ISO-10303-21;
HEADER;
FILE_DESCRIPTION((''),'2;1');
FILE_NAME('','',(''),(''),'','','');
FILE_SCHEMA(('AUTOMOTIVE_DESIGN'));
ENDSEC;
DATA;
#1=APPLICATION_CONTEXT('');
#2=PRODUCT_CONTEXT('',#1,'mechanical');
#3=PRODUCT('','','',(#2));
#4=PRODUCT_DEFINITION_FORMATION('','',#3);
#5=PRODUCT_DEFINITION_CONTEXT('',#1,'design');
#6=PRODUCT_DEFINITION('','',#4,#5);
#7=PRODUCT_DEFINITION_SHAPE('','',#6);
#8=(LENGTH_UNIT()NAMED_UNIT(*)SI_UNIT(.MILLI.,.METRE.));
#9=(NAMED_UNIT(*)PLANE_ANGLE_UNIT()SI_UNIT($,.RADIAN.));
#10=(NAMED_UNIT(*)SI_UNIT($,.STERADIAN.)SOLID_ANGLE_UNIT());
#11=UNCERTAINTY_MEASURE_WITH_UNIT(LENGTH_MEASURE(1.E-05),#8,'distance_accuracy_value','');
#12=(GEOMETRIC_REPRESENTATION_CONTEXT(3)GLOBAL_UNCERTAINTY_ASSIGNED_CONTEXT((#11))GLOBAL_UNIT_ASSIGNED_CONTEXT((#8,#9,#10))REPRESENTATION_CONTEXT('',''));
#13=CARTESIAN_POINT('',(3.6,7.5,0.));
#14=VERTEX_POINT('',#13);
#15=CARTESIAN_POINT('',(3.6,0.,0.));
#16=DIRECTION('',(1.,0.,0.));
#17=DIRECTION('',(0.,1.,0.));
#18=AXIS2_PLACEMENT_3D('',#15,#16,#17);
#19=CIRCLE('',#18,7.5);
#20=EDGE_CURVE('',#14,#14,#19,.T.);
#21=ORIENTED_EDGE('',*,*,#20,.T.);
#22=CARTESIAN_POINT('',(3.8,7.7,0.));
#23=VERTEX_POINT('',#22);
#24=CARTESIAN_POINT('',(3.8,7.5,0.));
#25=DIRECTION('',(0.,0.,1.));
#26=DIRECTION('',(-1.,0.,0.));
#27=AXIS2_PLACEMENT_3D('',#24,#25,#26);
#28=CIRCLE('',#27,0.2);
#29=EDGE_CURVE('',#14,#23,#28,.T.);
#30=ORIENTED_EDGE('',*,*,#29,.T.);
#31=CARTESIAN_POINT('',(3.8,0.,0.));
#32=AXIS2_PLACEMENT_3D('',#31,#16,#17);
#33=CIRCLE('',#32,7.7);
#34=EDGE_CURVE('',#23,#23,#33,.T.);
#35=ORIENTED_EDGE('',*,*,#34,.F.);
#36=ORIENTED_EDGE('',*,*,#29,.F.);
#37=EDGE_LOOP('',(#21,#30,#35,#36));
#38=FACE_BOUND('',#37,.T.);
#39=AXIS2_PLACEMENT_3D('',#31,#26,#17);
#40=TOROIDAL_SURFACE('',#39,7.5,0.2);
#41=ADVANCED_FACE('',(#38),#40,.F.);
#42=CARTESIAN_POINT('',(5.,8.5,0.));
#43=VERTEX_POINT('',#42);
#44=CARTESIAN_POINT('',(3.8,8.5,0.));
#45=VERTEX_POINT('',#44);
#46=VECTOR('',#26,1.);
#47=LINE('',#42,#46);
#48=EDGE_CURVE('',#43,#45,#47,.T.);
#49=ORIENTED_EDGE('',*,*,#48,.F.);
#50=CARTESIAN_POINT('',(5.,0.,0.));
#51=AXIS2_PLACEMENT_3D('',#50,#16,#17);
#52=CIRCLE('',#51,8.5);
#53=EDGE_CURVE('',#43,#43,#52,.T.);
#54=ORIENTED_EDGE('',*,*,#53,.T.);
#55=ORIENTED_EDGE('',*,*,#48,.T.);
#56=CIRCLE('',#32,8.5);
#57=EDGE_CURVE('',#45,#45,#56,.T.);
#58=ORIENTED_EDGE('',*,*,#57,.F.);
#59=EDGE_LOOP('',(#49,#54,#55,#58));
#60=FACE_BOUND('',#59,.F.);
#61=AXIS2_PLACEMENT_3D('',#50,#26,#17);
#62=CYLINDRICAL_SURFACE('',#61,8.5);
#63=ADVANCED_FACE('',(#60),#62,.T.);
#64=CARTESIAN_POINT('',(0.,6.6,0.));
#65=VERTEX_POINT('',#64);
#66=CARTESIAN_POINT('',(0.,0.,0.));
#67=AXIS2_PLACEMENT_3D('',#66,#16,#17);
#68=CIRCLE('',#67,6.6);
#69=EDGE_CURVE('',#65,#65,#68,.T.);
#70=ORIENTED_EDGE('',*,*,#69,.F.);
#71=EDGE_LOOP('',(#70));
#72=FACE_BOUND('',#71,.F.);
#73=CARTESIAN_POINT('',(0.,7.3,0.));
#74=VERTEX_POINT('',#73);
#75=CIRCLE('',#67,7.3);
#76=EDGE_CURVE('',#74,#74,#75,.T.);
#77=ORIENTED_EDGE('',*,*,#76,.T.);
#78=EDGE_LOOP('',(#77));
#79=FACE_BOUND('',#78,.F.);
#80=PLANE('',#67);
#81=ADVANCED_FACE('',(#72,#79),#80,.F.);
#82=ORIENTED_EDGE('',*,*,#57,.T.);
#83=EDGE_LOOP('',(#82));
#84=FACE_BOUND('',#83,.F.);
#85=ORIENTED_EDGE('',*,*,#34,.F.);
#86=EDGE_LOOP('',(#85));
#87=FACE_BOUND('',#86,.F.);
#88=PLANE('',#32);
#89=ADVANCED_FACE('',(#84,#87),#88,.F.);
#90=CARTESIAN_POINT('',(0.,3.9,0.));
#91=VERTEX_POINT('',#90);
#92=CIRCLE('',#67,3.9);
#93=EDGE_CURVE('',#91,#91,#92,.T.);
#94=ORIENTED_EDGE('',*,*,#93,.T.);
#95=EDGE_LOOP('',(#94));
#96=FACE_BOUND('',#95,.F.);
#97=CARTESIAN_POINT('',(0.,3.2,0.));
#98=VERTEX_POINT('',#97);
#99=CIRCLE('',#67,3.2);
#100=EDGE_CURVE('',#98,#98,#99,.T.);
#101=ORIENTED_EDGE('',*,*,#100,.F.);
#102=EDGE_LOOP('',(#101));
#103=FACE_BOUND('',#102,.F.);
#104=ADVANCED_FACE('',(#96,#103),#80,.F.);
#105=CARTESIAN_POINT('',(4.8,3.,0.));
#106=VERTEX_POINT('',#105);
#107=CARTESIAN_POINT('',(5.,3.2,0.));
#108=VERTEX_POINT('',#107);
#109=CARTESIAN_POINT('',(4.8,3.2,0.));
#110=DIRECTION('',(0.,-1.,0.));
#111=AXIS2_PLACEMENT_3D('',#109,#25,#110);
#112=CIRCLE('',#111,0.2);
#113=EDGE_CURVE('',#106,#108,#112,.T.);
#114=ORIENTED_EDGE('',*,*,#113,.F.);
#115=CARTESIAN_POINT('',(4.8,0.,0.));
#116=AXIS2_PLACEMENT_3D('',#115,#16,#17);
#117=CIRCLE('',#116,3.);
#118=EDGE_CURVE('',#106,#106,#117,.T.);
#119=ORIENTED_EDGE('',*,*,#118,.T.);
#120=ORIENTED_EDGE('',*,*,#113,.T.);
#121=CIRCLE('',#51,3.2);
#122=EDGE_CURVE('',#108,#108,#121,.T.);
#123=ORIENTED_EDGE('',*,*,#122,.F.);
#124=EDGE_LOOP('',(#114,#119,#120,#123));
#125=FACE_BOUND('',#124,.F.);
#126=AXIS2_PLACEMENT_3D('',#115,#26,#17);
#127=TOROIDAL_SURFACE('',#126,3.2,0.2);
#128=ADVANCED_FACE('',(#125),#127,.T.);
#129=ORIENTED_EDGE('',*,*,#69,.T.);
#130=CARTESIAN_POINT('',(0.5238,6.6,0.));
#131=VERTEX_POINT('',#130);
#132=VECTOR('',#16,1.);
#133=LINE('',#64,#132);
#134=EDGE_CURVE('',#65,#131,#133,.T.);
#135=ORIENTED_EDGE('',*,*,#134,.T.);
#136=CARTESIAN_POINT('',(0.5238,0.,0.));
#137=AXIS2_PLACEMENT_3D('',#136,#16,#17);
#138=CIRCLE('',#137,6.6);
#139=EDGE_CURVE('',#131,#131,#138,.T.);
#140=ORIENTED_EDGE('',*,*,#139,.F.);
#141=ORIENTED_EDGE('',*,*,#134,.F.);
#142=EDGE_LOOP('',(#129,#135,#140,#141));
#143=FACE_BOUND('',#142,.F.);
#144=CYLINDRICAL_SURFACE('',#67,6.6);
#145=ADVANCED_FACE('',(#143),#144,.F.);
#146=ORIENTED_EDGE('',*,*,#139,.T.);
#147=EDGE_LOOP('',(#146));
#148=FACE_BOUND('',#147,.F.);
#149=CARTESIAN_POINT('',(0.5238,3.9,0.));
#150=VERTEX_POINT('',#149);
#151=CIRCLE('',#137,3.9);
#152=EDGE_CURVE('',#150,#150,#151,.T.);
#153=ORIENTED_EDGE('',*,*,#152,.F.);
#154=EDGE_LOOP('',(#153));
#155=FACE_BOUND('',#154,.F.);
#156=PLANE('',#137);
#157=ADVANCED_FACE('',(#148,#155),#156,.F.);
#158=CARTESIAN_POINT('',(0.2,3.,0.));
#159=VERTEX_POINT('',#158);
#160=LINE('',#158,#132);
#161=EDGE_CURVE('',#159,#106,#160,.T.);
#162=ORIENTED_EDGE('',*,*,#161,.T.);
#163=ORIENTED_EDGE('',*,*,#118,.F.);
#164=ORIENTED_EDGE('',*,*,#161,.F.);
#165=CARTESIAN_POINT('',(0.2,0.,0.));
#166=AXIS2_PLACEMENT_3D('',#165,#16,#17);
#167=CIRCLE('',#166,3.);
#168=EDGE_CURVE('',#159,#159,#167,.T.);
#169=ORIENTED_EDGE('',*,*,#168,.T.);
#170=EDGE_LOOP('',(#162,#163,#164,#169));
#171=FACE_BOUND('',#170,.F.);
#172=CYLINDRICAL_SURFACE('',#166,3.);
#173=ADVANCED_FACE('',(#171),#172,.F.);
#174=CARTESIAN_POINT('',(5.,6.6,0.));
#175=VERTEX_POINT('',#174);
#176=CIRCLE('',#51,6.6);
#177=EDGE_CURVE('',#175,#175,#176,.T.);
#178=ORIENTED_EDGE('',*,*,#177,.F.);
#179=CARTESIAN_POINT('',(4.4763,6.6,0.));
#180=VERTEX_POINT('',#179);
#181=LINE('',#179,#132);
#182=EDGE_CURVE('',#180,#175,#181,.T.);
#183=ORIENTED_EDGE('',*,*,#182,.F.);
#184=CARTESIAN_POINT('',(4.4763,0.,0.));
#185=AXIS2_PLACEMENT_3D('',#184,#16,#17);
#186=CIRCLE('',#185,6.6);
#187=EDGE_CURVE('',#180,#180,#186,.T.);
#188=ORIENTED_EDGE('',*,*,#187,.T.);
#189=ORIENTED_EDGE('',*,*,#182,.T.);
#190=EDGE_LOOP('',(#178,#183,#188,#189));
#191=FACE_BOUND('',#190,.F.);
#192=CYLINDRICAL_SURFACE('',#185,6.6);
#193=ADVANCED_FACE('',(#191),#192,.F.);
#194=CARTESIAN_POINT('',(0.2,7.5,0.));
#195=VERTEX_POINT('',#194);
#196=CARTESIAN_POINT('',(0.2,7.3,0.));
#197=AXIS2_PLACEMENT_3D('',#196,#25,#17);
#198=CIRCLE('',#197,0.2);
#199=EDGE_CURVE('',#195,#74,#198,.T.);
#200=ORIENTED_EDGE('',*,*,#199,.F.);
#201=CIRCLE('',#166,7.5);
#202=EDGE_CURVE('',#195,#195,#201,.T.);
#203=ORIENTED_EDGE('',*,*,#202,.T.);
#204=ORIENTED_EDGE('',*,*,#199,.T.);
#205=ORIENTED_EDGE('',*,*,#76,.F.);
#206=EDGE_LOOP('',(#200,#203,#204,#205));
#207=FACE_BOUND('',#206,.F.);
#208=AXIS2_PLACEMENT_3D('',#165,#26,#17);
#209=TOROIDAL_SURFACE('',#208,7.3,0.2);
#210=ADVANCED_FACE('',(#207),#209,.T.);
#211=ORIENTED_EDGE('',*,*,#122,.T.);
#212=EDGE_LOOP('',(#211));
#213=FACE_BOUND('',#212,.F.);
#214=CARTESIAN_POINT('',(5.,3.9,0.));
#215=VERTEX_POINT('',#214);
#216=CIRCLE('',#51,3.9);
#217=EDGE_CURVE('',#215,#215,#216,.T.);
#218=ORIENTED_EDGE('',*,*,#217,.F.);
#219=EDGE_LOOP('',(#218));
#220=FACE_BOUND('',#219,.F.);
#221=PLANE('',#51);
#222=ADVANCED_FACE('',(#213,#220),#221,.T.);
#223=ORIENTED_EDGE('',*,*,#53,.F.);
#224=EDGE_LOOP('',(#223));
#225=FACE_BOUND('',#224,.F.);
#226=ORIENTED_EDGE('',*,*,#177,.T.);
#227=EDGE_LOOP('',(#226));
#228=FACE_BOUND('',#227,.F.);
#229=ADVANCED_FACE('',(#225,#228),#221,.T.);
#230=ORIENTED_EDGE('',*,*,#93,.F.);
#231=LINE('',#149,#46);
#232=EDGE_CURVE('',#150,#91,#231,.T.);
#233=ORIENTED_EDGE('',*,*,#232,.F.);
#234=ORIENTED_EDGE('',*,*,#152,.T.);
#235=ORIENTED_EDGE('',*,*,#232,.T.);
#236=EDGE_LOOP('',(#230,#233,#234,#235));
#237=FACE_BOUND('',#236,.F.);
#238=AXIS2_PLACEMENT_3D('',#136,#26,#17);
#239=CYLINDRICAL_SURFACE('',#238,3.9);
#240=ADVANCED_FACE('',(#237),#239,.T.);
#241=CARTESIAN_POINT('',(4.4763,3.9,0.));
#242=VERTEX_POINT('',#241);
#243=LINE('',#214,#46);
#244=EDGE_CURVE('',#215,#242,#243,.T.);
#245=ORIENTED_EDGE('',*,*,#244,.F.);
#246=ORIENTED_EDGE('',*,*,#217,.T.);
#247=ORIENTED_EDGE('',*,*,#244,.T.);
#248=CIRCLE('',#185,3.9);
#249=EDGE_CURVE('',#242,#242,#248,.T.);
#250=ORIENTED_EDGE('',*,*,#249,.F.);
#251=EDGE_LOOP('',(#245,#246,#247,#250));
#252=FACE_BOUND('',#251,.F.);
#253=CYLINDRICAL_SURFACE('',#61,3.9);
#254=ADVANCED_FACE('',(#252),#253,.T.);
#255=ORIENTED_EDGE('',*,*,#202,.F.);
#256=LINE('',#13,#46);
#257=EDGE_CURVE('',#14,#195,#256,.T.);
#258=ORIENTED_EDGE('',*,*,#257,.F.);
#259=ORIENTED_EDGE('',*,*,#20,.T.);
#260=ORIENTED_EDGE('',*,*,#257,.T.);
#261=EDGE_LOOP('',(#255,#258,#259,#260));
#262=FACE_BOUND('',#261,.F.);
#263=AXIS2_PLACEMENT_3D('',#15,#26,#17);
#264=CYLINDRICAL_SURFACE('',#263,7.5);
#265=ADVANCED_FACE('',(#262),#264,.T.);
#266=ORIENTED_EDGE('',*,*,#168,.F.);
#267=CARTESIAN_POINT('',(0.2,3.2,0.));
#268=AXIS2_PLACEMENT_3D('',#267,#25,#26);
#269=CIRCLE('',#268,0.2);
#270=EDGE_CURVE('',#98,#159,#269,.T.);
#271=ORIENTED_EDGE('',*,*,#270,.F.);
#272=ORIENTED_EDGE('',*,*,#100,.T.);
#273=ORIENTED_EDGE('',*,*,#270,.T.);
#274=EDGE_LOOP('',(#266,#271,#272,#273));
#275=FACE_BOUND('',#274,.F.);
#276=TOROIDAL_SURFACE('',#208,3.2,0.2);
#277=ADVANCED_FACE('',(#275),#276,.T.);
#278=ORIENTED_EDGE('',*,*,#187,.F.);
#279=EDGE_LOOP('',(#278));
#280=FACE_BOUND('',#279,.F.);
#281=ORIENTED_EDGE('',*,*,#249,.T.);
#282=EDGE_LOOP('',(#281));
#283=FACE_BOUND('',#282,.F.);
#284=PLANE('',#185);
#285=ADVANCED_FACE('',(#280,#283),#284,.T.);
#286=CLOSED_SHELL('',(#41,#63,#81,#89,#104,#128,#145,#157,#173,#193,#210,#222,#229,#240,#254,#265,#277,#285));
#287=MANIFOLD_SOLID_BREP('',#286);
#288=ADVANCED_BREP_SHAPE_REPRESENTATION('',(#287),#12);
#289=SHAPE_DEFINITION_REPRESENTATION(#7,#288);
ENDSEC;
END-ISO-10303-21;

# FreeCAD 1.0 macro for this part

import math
import FreeCAD as App
import Part
import Sketcher
Q = App.Units.Quantity

doc = App.newDocument("Part")
body = doc.addObject("PartDesign::Body", "Body")

# Sketch on XY plane
sketch1 = body.newObject("Sketcher::SketchObject", "Sketch")
sketch1.AttachmentSupport = (doc.getObject("XY_Plane"), [""])
sketch1.MapMode = "FlatFace"
sketch1.addGeometry([
    Part.LineSegment(App.Vector(0, 3.9, 0), App.Vector(0, 3.2, 0)),  # 0
    Part.ArcOfCircle(Part.Circle(App.Vector(0.2, 3.2, 0), App.Vector(0, 0, 1), 0.2), math.radians(180), math.radians(270)),  # 1
    Part.LineSegment(App.Vector(0.2, 3, 0), App.Vector(4.8, 3, 0)),  # 2
    Part.ArcOfCircle(Part.Circle(App.Vector(4.8, 3.2, 0), App.Vector(0, 0, 1), 0.2), math.radians(-90), math.radians(0)),  # 3
    Part.LineSegment(App.Vector(5, 3.2, 0), App.Vector(5, 3.9, 0)),  # 4
    Part.LineSegment(App.Vector(5, 3.9, 0), App.Vector(4.48, 3.9, 0)),  # 5
    Part.LineSegment(App.Vector(4.48, 3.9, 0), App.Vector(4.48, 6.6, 0)),  # 6
    Part.LineSegment(App.Vector(4.48, 6.6, 0), App.Vector(5, 6.6, 0)),  # 7
    Part.LineSegment(App.Vector(5, 6.6, 0), App.Vector(5, 8.5, 0)),  # 8
    Part.LineSegment(App.Vector(5, 8.5, 0), App.Vector(3.8, 8.5, 0)),  # 9
    Part.LineSegment(App.Vector(3.8, 8.5, 0), App.Vector(3.8, 7.7, 0)),  # 10
    Part.ArcOfCircle(Part.Circle(App.Vector(3.8, 7.5, 0), App.Vector(0, 0, 1), 0.2), math.radians(180), math.radians(450)),  # 11
    Part.LineSegment(App.Vector(3.6, 7.5, 0), App.Vector(0.2, 7.5, 0)),  # 12
    Part.ArcOfCircle(Part.Circle(App.Vector(0.2, 7.3, 0), App.Vector(0, 0, 1), 0.2), math.radians(90), math.radians(180)),  # 13
    Part.LineSegment(App.Vector(0, 7.3, 0), App.Vector(0, 6.6, 0)),  # 14
    Part.LineSegment(App.Vector(0, 6.6, 0), App.Vector(0.52, 6.6, 0)),  # 15
    Part.LineSegment(App.Vector(0.52, 6.6, 0), App.Vector(0.52, 3.9, 0)),  # 16
    Part.LineSegment(App.Vector(0.52, 3.9, 0), App.Vector(0, 3.9, 0)),  # 17
], False)
sketch1.addConstraint([
    Sketcher.Constraint("Tangent", 0, 2, 1, 1),
    Sketcher.Constraint("Tangent", 1, 2, 2, 1),
    Sketcher.Constraint("Tangent", 2, 2, 3, 1),
    Sketcher.Constraint("Tangent", 3, 2, 4, 1),
    Sketcher.Constraint("Coincident", 4, 2, 5, 1),
    Sketcher.Constraint("Coincident", 5, 2, 6, 1),
    Sketcher.Constraint("Coincident", 6, 2, 7, 1),
    Sketcher.Constraint("Coincident", 7, 2, 8, 1),
    Sketcher.Constraint("Coincident", 8, 2, 9, 1),
    Sketcher.Constraint("Coincident", 9, 2, 10, 1),
    Sketcher.Constraint("Coincident", 10, 2, 11, 2),
    Sketcher.Constraint("Coincident", 11, 1, 12, 1),
    Sketcher.Constraint("Tangent", 12, 2, 13, 1),
    Sketcher.Constraint("Tangent", 13, 2, 14, 1),
    Sketcher.Constraint("Coincident", 14, 2, 15, 1),
    Sketcher.Constraint("Coincident", 15, 2, 16, 1),
    Sketcher.Constraint("Coincident", 16, 2, 17, 1),
    Sketcher.Constraint("Coincident", 17, 2, 0, 1),
    Sketcher.Constraint("Vertical", 0),
    Sketcher.Constraint("Horizontal", 2),
    Sketcher.Constraint("Vertical", 4),
    Sketcher.Constraint("Horizontal", 5),
    Sketcher.Constraint("Vertical", 6),
    Sketcher.Constraint("Horizontal", 7),
    Sketcher.Constraint("Vertical", 8),
    Sketcher.Constraint("Horizontal", 9),
    Sketcher.Constraint("Vertical", 10),
    Sketcher.Constraint("Horizontal", 12),
    Sketcher.Constraint("Vertical", 14),
    Sketcher.Constraint("Horizontal", 15),
    Sketcher.Constraint("Vertical", 16),
    Sketcher.Constraint("Horizontal", 17),
    Sketcher.Constraint("Equal", 1, 3),
    Sketcher.Constraint("Equal", 3, 11),
    Sketcher.Constraint("Equal", 11, 13),
    Sketcher.Constraint("PointOnObject", 0, 2, -2),
    Sketcher.Constraint("PointOnObject", 13, 2, -2),
    Sketcher.Constraint("Horizontal", 7, 2, 14, 2),
    Sketcher.Constraint("Horizontal", 5, 2, 16, 2),
    Sketcher.Constraint("Vertical", 4, 2, 7, 2),
    Sketcher.Constraint("Vertical", 11, 3, 9, 2),
    Sketcher.Constraint("Equal", 7, 15),
    Sketcher.Constraint("Equal", 4, 14),
    Sketcher.Constraint("Radius", 1, Q("0.2 mm")),
    Sketcher.Constraint("DistanceX", 2, 1, 2, 2, Q("4.6 mm")),
    Sketcher.Constraint("DistanceX", 9, 2, 9, 1, Q("1.2 mm")),
    Sketcher.Constraint("DistanceY", 0, 2, 0, 1, Q("0.7 mm")),
    Sketcher.Constraint("DistanceY", 6, 1, 6, 2, Q("2.7 mm")),
    Sketcher.Constraint("DistanceY", 8, 1, 8, 2, Q("1.9 mm")),
    Sketcher.Constraint("DistanceY", 10, 2, 10, 1, Q("0.8 mm")),
    Sketcher.Constraint("DistanceY", -1, 1, 1, 2, Q("3 mm")),
    Sketcher.Constraint("DistanceX", 5, 2, 5, 1, Q("0.5237 mm")),
])
revolution = body.newObject("PartDesign::Revolution", "Revolution")
revolution.Profile = sketch1
revolution.ReferenceAxis = (sketch1, ["H_Axis"])
revolution.Angle = 360

doc.recompute()
